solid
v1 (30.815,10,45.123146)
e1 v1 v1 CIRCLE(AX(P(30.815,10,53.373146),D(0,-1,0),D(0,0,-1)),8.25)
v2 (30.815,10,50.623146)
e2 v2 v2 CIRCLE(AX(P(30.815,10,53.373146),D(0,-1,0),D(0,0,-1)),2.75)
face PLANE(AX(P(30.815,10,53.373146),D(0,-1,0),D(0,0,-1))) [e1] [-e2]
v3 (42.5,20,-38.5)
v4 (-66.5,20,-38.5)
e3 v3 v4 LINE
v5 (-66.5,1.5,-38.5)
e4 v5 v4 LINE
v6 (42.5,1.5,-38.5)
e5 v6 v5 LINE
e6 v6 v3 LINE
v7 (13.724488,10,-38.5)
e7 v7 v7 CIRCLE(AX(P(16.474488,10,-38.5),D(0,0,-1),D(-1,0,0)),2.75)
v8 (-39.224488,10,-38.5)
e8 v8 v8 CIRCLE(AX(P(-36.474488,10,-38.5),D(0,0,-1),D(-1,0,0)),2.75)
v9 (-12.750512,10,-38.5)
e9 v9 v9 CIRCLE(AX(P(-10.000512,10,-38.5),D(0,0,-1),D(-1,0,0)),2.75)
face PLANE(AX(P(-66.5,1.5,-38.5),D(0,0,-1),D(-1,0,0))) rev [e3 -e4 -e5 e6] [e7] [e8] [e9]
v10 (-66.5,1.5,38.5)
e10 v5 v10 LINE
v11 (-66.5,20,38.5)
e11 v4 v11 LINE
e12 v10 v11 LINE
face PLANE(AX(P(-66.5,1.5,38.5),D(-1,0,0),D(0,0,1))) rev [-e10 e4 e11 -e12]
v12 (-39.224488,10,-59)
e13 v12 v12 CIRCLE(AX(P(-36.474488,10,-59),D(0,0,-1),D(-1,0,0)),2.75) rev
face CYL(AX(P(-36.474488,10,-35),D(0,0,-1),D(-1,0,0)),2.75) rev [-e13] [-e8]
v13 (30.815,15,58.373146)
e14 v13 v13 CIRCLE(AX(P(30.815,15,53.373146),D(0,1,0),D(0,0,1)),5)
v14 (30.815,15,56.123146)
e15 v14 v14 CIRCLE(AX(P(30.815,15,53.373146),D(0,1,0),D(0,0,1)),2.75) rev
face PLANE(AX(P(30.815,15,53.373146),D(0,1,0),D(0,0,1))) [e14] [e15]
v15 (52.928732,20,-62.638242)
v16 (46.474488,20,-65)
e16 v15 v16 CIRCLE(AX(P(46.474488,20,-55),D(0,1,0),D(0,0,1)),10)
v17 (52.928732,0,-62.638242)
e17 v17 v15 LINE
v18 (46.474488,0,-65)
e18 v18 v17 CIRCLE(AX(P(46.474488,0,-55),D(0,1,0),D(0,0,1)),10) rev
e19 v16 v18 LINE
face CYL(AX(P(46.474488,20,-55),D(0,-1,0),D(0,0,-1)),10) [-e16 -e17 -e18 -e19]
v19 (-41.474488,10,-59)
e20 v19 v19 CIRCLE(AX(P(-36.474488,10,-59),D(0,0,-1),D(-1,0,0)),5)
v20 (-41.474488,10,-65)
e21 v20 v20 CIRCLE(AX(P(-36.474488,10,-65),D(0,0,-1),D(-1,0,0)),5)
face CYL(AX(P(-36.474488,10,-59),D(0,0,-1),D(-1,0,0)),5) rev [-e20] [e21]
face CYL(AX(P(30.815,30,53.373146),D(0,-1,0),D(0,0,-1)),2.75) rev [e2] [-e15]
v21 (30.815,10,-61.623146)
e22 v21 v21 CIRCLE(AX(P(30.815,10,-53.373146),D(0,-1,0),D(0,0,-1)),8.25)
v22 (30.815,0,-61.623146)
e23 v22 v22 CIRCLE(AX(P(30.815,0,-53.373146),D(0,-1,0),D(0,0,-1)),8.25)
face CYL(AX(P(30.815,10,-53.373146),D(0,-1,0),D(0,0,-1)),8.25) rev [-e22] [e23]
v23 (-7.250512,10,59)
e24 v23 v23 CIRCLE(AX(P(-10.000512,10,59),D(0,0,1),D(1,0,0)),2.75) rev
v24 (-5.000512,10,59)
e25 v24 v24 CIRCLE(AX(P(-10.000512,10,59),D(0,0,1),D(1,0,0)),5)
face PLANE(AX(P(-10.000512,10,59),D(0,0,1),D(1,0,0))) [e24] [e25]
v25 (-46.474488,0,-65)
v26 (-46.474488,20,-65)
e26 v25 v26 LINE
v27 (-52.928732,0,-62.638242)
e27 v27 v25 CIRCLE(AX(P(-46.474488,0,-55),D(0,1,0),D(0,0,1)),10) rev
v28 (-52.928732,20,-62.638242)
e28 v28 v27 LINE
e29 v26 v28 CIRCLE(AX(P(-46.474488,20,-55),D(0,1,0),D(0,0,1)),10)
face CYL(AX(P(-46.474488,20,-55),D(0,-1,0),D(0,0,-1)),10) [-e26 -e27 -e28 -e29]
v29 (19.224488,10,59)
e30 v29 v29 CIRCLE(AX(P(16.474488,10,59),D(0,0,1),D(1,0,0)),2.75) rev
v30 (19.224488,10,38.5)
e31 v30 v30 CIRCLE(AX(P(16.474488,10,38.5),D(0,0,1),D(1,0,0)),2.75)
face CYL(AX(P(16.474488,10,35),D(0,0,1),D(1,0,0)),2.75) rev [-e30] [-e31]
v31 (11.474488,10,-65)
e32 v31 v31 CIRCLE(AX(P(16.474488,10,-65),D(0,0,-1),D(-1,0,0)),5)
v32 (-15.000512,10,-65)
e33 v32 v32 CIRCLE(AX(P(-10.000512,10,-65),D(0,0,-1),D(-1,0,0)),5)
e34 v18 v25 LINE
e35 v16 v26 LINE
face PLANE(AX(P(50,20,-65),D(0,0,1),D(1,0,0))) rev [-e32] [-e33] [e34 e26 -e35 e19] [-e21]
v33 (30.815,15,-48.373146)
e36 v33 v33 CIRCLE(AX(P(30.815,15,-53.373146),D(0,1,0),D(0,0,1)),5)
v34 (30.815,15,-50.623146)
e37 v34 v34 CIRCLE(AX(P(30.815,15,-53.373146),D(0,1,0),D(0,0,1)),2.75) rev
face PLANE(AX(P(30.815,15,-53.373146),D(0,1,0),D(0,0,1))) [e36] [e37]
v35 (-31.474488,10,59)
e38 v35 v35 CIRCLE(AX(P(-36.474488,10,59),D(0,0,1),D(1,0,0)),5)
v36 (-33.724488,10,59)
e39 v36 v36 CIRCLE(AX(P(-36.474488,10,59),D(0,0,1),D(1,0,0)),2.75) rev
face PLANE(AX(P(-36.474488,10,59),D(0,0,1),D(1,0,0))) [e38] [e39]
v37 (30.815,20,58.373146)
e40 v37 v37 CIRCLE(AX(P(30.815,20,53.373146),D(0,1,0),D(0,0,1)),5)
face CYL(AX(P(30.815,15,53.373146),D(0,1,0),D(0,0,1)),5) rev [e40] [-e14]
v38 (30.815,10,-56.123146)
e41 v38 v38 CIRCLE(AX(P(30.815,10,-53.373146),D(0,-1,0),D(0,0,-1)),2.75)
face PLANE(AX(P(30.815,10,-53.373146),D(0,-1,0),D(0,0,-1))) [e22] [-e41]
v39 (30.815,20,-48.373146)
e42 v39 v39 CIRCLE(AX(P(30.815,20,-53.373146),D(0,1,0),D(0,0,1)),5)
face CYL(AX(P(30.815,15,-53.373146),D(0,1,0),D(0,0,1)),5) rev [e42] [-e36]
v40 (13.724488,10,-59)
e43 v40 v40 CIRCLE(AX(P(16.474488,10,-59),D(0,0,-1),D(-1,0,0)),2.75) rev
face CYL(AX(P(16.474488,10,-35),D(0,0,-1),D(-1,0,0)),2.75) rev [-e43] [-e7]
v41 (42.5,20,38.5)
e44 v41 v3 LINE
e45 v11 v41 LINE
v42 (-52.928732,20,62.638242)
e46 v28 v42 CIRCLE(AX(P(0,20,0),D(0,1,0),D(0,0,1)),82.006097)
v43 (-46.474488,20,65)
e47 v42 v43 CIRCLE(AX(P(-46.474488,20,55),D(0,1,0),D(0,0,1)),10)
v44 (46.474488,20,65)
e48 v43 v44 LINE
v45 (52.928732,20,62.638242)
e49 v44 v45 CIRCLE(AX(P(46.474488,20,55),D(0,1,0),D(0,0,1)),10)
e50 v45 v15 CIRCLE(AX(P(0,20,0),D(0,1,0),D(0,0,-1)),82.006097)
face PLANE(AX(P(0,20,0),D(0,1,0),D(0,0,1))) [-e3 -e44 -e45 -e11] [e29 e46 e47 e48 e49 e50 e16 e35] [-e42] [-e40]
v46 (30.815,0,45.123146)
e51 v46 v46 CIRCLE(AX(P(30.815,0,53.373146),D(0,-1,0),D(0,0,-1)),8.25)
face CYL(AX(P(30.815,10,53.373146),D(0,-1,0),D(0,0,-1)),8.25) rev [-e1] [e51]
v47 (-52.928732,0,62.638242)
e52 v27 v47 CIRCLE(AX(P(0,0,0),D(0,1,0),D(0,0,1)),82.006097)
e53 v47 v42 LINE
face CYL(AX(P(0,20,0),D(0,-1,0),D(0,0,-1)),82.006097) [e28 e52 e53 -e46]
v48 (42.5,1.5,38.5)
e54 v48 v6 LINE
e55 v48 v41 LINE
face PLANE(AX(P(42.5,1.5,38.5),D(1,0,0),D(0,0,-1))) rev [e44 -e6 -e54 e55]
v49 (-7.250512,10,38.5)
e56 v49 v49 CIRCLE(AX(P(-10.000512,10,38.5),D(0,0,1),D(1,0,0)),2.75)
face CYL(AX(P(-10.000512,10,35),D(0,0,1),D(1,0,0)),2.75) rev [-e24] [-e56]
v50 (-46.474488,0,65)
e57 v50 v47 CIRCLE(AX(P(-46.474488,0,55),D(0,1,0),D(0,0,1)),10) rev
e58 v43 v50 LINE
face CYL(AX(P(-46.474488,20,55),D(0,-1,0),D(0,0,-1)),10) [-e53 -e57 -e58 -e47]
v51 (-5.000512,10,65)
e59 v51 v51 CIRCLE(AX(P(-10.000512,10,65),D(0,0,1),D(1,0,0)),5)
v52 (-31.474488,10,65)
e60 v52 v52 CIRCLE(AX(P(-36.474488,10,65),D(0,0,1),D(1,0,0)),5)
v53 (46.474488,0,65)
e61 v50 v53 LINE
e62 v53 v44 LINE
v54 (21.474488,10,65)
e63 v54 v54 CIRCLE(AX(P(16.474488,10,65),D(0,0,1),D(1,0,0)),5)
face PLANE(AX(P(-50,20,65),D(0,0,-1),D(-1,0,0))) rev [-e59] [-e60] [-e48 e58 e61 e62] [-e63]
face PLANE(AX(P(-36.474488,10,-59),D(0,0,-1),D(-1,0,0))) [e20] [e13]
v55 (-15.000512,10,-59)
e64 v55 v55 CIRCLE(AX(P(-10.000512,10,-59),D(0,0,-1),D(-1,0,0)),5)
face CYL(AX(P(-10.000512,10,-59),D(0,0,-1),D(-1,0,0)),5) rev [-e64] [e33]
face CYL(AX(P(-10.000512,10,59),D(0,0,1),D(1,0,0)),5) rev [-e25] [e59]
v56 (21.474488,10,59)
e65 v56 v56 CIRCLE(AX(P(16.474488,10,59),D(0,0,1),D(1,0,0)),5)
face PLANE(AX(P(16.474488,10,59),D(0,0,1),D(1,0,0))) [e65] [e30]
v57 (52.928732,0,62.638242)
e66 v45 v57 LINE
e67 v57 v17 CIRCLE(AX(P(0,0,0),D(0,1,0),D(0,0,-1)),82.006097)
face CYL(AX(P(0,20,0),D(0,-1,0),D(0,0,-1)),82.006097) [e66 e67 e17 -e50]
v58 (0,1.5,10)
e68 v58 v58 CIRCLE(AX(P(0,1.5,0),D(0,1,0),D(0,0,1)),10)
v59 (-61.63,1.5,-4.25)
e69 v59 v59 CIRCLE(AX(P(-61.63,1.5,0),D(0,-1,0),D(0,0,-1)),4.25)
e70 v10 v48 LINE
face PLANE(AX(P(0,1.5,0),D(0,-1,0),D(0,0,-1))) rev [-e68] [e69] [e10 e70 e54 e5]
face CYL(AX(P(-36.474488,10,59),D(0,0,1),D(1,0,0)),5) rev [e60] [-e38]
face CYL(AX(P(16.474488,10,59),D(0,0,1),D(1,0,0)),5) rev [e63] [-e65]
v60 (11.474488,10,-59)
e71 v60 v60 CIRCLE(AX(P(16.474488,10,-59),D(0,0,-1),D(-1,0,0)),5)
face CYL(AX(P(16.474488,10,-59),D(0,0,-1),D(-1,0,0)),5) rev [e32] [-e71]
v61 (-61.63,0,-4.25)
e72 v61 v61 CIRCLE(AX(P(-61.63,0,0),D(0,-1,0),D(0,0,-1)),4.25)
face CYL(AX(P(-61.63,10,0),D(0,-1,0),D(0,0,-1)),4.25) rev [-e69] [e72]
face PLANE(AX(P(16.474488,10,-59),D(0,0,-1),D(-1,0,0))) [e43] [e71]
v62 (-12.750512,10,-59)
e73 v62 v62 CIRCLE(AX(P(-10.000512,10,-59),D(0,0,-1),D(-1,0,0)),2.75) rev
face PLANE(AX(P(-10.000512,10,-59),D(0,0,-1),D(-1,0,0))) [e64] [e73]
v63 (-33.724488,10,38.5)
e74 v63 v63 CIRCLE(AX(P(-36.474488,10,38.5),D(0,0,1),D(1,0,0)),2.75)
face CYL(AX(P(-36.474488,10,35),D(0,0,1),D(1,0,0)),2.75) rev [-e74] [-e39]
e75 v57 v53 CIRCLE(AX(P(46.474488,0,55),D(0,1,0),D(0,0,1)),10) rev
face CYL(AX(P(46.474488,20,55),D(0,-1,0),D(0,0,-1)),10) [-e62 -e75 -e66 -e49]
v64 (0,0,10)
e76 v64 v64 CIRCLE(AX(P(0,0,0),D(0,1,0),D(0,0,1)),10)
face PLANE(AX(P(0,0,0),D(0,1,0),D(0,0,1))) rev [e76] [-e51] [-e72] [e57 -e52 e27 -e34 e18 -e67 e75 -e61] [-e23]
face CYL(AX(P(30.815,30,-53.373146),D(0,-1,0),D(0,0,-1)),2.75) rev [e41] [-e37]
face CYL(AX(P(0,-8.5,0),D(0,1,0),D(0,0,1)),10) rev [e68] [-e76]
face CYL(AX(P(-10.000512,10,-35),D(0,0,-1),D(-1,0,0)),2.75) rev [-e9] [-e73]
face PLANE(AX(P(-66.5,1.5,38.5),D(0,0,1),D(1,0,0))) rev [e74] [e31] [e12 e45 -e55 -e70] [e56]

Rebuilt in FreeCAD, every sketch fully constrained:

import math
import FreeCAD as App
import Part
import Sketcher

V = App.Vector


def edges_at(feature, points):
    """Names of the edges that pass closest to the given points."""
    edges = feature.Shape.Edges
    near = lambda p: min(range(len(edges)), key=lambda i: edges[i].distToShape(Part.Vertex(*p))[0])
    return sorted({f"Edge{near(p) + 1}" for p in points})

doc = App.newDocument("Part")
body = doc.addObject("PartDesign::Body", "Body")

sketch1 = body.newObject("Sketcher::SketchObject", "Sketch")
sketch1.AttachmentSupport = (doc.getObject("XZ_Plane"), [""])
sketch1.MapMode = "FlatFace"
sketch1.addGeometry([
    Part.LineSegment(V(-50, 65, 0), V(50, 65, 0)),
    Part.ArcOfCircle(Part.Circle(V(0, 0, 0), V(0, 0, 1), 82), math.radians(-52), math.radians(52)),
    Part.LineSegment(V(50, -65, 0), V(-50, -65, 0)),
    Part.ArcOfCircle(Part.Circle(V(0, 0, 0), V(0, 0, 1), 82), math.radians(128), math.radians(232)),
], False)
sketch1.addConstraint([
    Sketcher.Constraint("Coincident", 0, 2, 1, 2),
    Sketcher.Constraint("Coincident", 1, 1, 2, 1),
    Sketcher.Constraint("Coincident", 2, 2, 3, 2),
    Sketcher.Constraint("Coincident", 3, 1, 0, 1),
    Sketcher.Constraint("Horizontal", 0),
    Sketcher.Constraint("Horizontal", 2),
    Sketcher.Constraint("Coincident", 1, 3, -1, 1),
    Sketcher.Constraint("Coincident", 3, 3, -1, 1),
    Sketcher.Constraint("Equal", 1, 3),
    Sketcher.Constraint("Vertical", 0, 2, 1, 1),
    Sketcher.Constraint("DistanceX", 0, 1, 0, 2, 100.0),
    Sketcher.Constraint("DistanceY", -1, 1, 0, 2, 65.0),
])
pad1 = body.newObject("PartDesign::Pad", "Pad")
pad1.Profile = sketch1
pad1.Length = 20
pad1.Reversed = True
doc.recompute()

fillet = body.newObject("PartDesign::Fillet", "Fillet")
fillet.Base = (pad1, edges_at(pad1, [
    (-50, 10, -65),
    (50, 10, -65),
    (50, 10, 65),
    (-50, 10, 65),
]))
fillet.Radius = 10

sketch2 = body.newObject("Sketcher::SketchObject", "Sketch001")
sketch2.AttachmentSupport = (doc.getObject("XZ_Plane"), [""])
sketch2.MapMode = "FlatFace"
sketch2.AttachmentOffset = App.Placement(V(0, 0, -20), App.Rotation())
sketch2.addGeometry([
    Part.LineSegment(V(-66, -38, 0), V(-66, 38, 0)),
    Part.LineSegment(V(-66, 38, 0), V(42, 38, 0)),
    Part.LineSegment(V(42, 38, 0), V(42, -38, 0)),
    Part.LineSegment(V(42, -38, 0), V(-66, -38, 0)),
], False)
sketch2.addConstraint([
    Sketcher.Constraint("Coincident", 0, 2, 1, 1),
    Sketcher.Constraint("Coincident", 1, 2, 2, 1),
    Sketcher.Constraint("Coincident", 2, 2, 3, 1),
    Sketcher.Constraint("Coincident", 3, 2, 0, 1),
    Sketcher.Constraint("Vertical", 0),
    Sketcher.Constraint("Horizontal", 1),
    Sketcher.Constraint("Vertical", 2),
    Sketcher.Constraint("Horizontal", 3),
    Sketcher.Constraint("DistanceX", 1, 1, 1, 2, 109.0),
    Sketcher.Constraint("DistanceY", 0, 1, 0, 2, 77.0),
    Sketcher.Constraint("DistanceX", 0, 2, -1, 1, 66.5),
    Sketcher.Constraint("DistanceY", -1, 1, 0, 2, 38.5),
])
pocket1 = body.newObject("PartDesign::Pocket", "Pocket")
pocket1.Profile = sketch2
pocket1.Length = 18.5
pocket1.Reversed = True

sketch3 = body.newObject("Sketcher::SketchObject", "Sketch002")
sketch3.AttachmentSupport = (doc.getObject("XZ_Plane"), [""])
sketch3.MapMode = "FlatFace"
sketch3.addGeometry([
    Part.Circle(V(30.8, 53.4, 0), V(0, 0, 1), 8.2),
    Part.Circle(V(30.8, -53.4, 0), V(0, 0, 1), 8.2),
    Part.Circle(V(-61.6, 0, 0), V(0, 0, 1), 4.2),
], False)
sketch3.addConstraint([
    Sketcher.Constraint("Equal", 0, 1),
    Sketcher.Constraint("Symmetric", 0, 3, 1, 3, -1),
    Sketcher.Constraint("PointOnObject", 2, 3, -1),
    Sketcher.Constraint("Diameter", 0, 16.5),
    Sketcher.Constraint("Diameter", 2, 8.5),
    Sketcher.Constraint("DistanceX", 2, 3, -1, 1, 61.63),
    Sketcher.Constraint("DistanceX", -1, 1, 0, 3, 30.815),
    Sketcher.Constraint("DistanceY", 1, 3, 0, 3, 106.746291),
])
pocket2 = body.newObject("PartDesign::Pocket", "Pocket001")
pocket2.Profile = sketch3
pocket2.Length = 10

sketch4 = body.newObject("Sketcher::SketchObject", "Sketch003")
sketch4.AttachmentSupport = (doc.getObject("XZ_Plane"), [""])
sketch4.MapMode = "FlatFace"
sketch4.AttachmentOffset = App.Placement(V(0, 0, -1.5), App.Rotation())
sketch4.addGeometry(Part.Circle(V(0, 0, 0), V(0, 0, 1), 10), False)
sketch4.addConstraint([
    Sketcher.Constraint("Coincident", 0, 3, -1, 1),
    Sketcher.Constraint("Diameter", 0, 20.0),
])
pocket3 = body.newObject("PartDesign::Pocket", "Pocket002")
pocket3.Profile = sketch4
pocket3.Length = 10
pocket3.Reversed = True

sketch5 = body.newObject("Sketcher::SketchObject", "Sketch004")
sketch5.AttachmentSupport = (doc.getObject("XY_Plane"), [""])
sketch5.MapMode = "FlatFace"
sketch5.AttachmentOffset = App.Placement(V(0, 0, 65), App.Rotation())
sketch5.addGeometry([
    Part.Circle(V(-36.5, 10, 0), V(0, 0, 1), 2.8),
    Part.Circle(V(-10, 10, 0), V(0, 0, 1), 2.8),
    Part.Circle(V(16.5, 10, 0), V(0, 0, 1), 2.8),
], False)
sketch5.addConstraint([
    Sketcher.Constraint("Equal", 0, 1),
    Sketcher.Constraint("Equal", 1, 2),
    Sketcher.Constraint("Horizontal", 0, 3, 1, 3),
    Sketcher.Constraint("Horizontal", 1, 3, 2, 3),
    Sketcher.Constraint("Diameter", 0, 5.5),
    Sketcher.Constraint("DistanceY", -1, 1, 0, 3, 10.0),
    Sketcher.Constraint("DistanceX", 1, 3, 2, 3, 26.475),
    Sketcher.Constraint("DistanceX", 0, 3, -1, 1, 36.474488),
    Sketcher.Constraint("DistanceX", 1, 3, -1, 1, 10.000512),
])
pocket4 = body.newObject("PartDesign::Pocket", "Pocket003")
pocket4.Profile = sketch5
pocket4.Length = 30

sketch6 = body.newObject("Sketcher::SketchObject", "Sketch005")
sketch6.AttachmentSupport = (doc.getObject("XY_Plane"), [""])
sketch6.MapMode = "FlatFace"
sketch6.AttachmentOffset = App.Placement(V(0, 0, -35), App.Rotation())
sketch6.addGeometry([
    Part.Circle(V(16.5, 10, 0), V(0, 0, 1), 2.8),
    Part.Circle(V(-10, 10, 0), V(0, 0, 1), 2.8),
    Part.Circle(V(-36.5, 10, 0), V(0, 0, 1), 2.8),
], False)
sketch6.addConstraint([
    Sketcher.Constraint("Equal", 0, 1),
    Sketcher.Constraint("Equal", 1, 2),
    Sketcher.Constraint("Horizontal", 0, 3, 1, 3),
    Sketcher.Constraint("Horizontal", 1, 3, 2, 3),
    Sketcher.Constraint("Diameter", 0, 5.5),
    Sketcher.Constraint("DistanceY", -1, 1, 0, 3, 10.0),
    Sketcher.Constraint("DistanceX", 1, 3, 0, 3, 26.475),
    Sketcher.Constraint("DistanceX", -1, 1, 0, 3, 16.474488),
    Sketcher.Constraint("DistanceX", 2, 3, -1, 1, 36.474488),
])
pocket5 = body.newObject("PartDesign::Pocket", "Pocket004")
pocket5.Profile = sketch6
pocket5.Length = 30

sketch7 = body.newObject("Sketcher::SketchObject", "Sketch006")
sketch7.AttachmentSupport = (doc.getObject("XY_Plane"), [""])
sketch7.MapMode = "FlatFace"
sketch7.AttachmentOffset = App.Placement(V(0, 0, 65), App.Rotation())
sketch7.addGeometry([
    Part.Circle(V(-36, 10, 0), V(0, 0, 1), 5),
    Part.Circle(V(-10, 10, 0), V(0, 0, 1), 5),
    Part.Circle(V(16, 10, 0), V(0, 0, 1), 5),
], False)
sketch7.addConstraint([
    Sketcher.Constraint("Equal", 0, 1),
    Sketcher.Constraint("Equal", 1, 2),
    Sketcher.Constraint("Horizontal", 0, 3, 1, 3),
    Sketcher.Constraint("Horizontal", 1, 3, 2, 3),
    Sketcher.Constraint("Diameter", 0, 10.0),
    Sketcher.Constraint("DistanceY", -1, 1, 0, 3, 10.0),
    Sketcher.Constraint("DistanceX", 1, 3, 2, 3, 26.475),
    Sketcher.Constraint("DistanceX", 0, 3, -1, 1, 36.474488),
    Sketcher.Constraint("DistanceX", 1, 3, -1, 1, 10.000512),
])
pocket6 = body.newObject("PartDesign::Pocket", "Pocket005")
pocket6.Profile = sketch7
pocket6.Length = 6

sketch8 = body.newObject("Sketcher::SketchObject", "Sketch007")
sketch8.AttachmentSupport = (doc.getObject("XY_Plane"), [""])
sketch8.MapMode = "FlatFace"
sketch8.AttachmentOffset = App.Placement(V(0, 0, -59), App.Rotation())
sketch8.addGeometry([
    Part.Circle(V(16, 10, 0), V(0, 0, 1), 5),
    Part.Circle(V(-10, 10, 0), V(0, 0, 1), 5),
    Part.Circle(V(-36, 10, 0), V(0, 0, 1), 5),
], False)
sketch8.addConstraint([
    Sketcher.Constraint("Equal", 0, 1),
    Sketcher.Constraint("Equal", 1, 2),
    Sketcher.Constraint("Horizontal", 0, 3, 1, 3),
    Sketcher.Constraint("Horizontal", 1, 3, 2, 3),
    Sketcher.Constraint("Diameter", 0, 10.0),
    Sketcher.Constraint("DistanceY", -1, 1, 0, 3, 10.0),
    Sketcher.Constraint("DistanceX", 1, 3, 0, 3, 26.475),
    Sketcher.Constraint("DistanceX", -1, 1, 0, 3, 16.474488),
    Sketcher.Constraint("DistanceX", 2, 3, -1, 1, 36.474488),
])
pocket7 = body.newObject("PartDesign::Pocket", "Pocket006")
pocket7.Profile = sketch8
pocket7.Length = 6

sketch9 = body.newObject("Sketcher::SketchObject", "Sketch008")
sketch9.AttachmentSupport = (doc.getObject("XZ_Plane"), [""])
sketch9.MapMode = "FlatFace"
sketch9.AttachmentOffset = App.Placement(V(0, 0, -10), App.Rotation())
sketch9.addGeometry([
    Part.Circle(V(30.8, 53.4, 0), V(0, 0, 1), 2.8),
    Part.Circle(V(30.8, -53.4, 0), V(0, 0, 1), 2.8),
], False)
sketch9.addConstraint([
    Sketcher.Constraint("Equal", 0, 1),
    Sketcher.Constraint("Symmetric", 0, 3, 1, 3, -1),
    Sketcher.Constraint("Diameter", 0, 5.5),
    Sketcher.Constraint("DistanceX", -1, 1, 0, 3, 30.815),
    Sketcher.Constraint("DistanceY", 1, 3, 0, 3, 106.746291),
])
pocket8 = body.newObject("PartDesign::Pocket", "Pocket007")
pocket8.Profile = sketch9
pocket8.Length = 20

sketch10 = body.newObject("Sketcher::SketchObject", "Sketch009")
sketch10.AttachmentSupport = (doc.getObject("XZ_Plane"), [""])
sketch10.MapMode = "FlatFace"
sketch10.AttachmentOffset = App.Placement(V(0, 0, -20), App.Rotation())
sketch10.addGeometry([
    Part.Circle(V(31, -53, 0), V(0, 0, 1), 5),
    Part.Circle(V(31, 53, 0), V(0, 0, 1), 5),
], False)
sketch10.addConstraint([
    Sketcher.Constraint("Equal", 0, 1),
    Sketcher.Constraint("Symmetric", 0, 3, 1, 3, -1),
    Sketcher.Constraint("Diameter", 0, 10.0),
    Sketcher.Constraint("DistanceX", -1, 1, 0, 3, 30.815),
    Sketcher.Constraint("DistanceY", 0, 3, 1, 3, 106.746291),
])
pocket9 = body.newObject("PartDesign::Pocket", "Pocket008")
pocket9.Profile = sketch10
pocket9.Length = 5
pocket9.Reversed = True

doc.recompute()
